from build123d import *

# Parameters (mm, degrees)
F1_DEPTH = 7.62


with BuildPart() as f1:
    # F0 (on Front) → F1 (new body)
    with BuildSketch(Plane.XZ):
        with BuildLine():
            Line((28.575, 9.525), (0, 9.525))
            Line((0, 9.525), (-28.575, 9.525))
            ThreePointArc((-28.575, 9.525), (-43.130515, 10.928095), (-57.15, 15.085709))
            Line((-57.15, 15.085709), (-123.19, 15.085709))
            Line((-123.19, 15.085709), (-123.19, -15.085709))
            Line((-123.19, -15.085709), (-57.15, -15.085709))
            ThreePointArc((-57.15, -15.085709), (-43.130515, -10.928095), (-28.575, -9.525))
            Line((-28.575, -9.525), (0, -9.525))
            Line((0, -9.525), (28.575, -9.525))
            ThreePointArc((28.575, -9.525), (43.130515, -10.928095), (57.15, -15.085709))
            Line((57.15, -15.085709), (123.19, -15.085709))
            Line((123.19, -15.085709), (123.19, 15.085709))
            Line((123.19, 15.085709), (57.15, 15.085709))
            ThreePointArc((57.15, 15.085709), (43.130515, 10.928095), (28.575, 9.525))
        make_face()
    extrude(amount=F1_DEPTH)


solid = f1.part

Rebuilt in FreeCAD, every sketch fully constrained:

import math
import FreeCAD as App
import Part
import Sketcher
from FreeCAD import Vector
Q = App.Units.Quantity

doc = App.newDocument("Part")
params = doc.addObject("Spreadsheet::Sheet", "Params")
for row, (alias, value) in enumerate([
    ("sketch1_width", "2.6 in"),
    ("sketch1_width2", "2.25 in"),
    ("pad1_length", "0.3 in"),
], start=1):
    params.set(f"A{row}", alias)
    params.set(f"B{row}", "=" + value)
    params.setAlias(f"B{row}", alias)

body = doc.addObject("PartDesign::Body", "Body")

# Sketch on XZ plane
sketch1 = doc.addObject("Sketcher::SketchObject", "Sketch")
body.addObject(sketch1)
sketch1.AttachmentSupport = (doc.XZ_Plane, [""])
sketch1.MapMode = "FlatFace"
sketch1.addGeometry([
    Part.LineSegment(Vector(28.575, 9.525, 0), Vector(-28.575, 9.525, 0)),  # 0
    Part.ArcOfCircle(Part.Circle(Vector(-28.575, 85.725005, 0), Vector(0, 0, 1), 76.200005), math.radians(-112.024311), math.radians(-90)),  # 1
    Part.LineSegment(Vector(-57.15, 15.085709, 0), Vector(-123.19, 15.085709, 0)),  # 2
    Part.LineSegment(Vector(-123.19, 15.085709, 0), Vector(-123.19, -15.085709, 0)),  # 3
    Part.LineSegment(Vector(-123.19, -15.085709, 0), Vector(-57.15, -15.085709, 0)),  # 4
    Part.ArcOfCircle(Part.Circle(Vector(-28.575, -85.725005, 0), Vector(0, 0, 1), 76.200005), math.radians(90), math.radians(112.024311)),  # 5
    Part.LineSegment(Vector(-28.575, -9.525, 0), Vector(28.575, -9.525, 0)),  # 6
    Part.ArcOfCircle(Part.Circle(Vector(28.575, -85.725005, 0), Vector(0, 0, 1), 76.200005), math.radians(67.975689), math.radians(90)),  # 7
    Part.LineSegment(Vector(57.15, -15.085709, 0), Vector(123.19, -15.085709, 0)),  # 8
    Part.LineSegment(Vector(123.19, -15.085709, 0), Vector(123.19, 15.085709, 0)),  # 9
    Part.LineSegment(Vector(123.19, 15.085709, 0), Vector(57.15, 15.085709, 0)),  # 10
    Part.ArcOfCircle(Part.Circle(Vector(28.575, 85.725005, 0), Vector(0, 0, 1), 76.200005), math.radians(-90), math.radians(-67.975689)),  # 11
], False)
sketch1.addConstraint([
    Sketcher.Constraint("Tangent", 0, 2, 1, 2),
    Sketcher.Constraint("Coincident", 1, 1, 2, 1),
    Sketcher.Constraint("Coincident", 2, 2, 3, 1),
    Sketcher.Constraint("Coincident", 3, 2, 4, 1),
    Sketcher.Constraint("Coincident", 4, 2, 5, 2),
    Sketcher.Constraint("Tangent", 5, 1, 6, 1),
    Sketcher.Constraint("Tangent", 6, 2, 7, 2),
    Sketcher.Constraint("Coincident", 7, 1, 8, 1),
    Sketcher.Constraint("Coincident", 8, 2, 9, 1),
    Sketcher.Constraint("Coincident", 9, 2, 10, 1),
    Sketcher.Constraint("Coincident", 10, 2, 11, 2),
    Sketcher.Constraint("Tangent", 11, 1, 0, 1),
    Sketcher.Constraint("Horizontal", 0),
    Sketcher.Constraint("Horizontal", 2),
    Sketcher.Constraint("Vertical", 3),
    Sketcher.Constraint("Horizontal", 4),
    Sketcher.Constraint("Horizontal", 6),
    Sketcher.Constraint("Horizontal", 8),
    Sketcher.Constraint("Vertical", 9),
    Sketcher.Constraint("Horizontal", 10),
    Sketcher.Constraint("Equal", 1, 5),
    Sketcher.Constraint("Equal", 5, 7),
    Sketcher.Constraint("Equal", 7, 11),
    Sketcher.Constraint("Symmetric", 1, 3, 7, 3, -1, 1),
    Sketcher.Constraint("Symmetric", 2, 2, 8, 2, -1, 1),
    Sketcher.Constraint("Symmetric", 4, 2, 10, 2, -1, 1),
    Sketcher.Constraint("Symmetric", 4, 2, 7, 1, -2),
    Sketcher.Constraint("DistanceX", 2, 2, 2, 1, Q("2.6 in")),
    Sketcher.Constraint("DistanceX", 0, 2, 0, 1, Q("2.25 in")),
    Sketcher.Constraint("DistanceX", 1, 1, -1, 1, Q("2.25 in")),
    Sketcher.Constraint("DistanceY", 5, 1, 0, 2, Q("0.75 in")),
    Sketcher.Constraint("Radius", 1, Q("76.200005 mm")),
])
sketch1.setExpression("Constraints[27]", "Params.sketch1_width")
sketch1.setExpression("Constraints[28]", "Params.sketch1_width2")
pad1 = doc.addObject("PartDesign::Pad", "Pad")
body.addObject(pad1)
pad1.Profile = sketch1
pad1.setExpression("Length", "Params.pad1_length")

doc.recompute()
